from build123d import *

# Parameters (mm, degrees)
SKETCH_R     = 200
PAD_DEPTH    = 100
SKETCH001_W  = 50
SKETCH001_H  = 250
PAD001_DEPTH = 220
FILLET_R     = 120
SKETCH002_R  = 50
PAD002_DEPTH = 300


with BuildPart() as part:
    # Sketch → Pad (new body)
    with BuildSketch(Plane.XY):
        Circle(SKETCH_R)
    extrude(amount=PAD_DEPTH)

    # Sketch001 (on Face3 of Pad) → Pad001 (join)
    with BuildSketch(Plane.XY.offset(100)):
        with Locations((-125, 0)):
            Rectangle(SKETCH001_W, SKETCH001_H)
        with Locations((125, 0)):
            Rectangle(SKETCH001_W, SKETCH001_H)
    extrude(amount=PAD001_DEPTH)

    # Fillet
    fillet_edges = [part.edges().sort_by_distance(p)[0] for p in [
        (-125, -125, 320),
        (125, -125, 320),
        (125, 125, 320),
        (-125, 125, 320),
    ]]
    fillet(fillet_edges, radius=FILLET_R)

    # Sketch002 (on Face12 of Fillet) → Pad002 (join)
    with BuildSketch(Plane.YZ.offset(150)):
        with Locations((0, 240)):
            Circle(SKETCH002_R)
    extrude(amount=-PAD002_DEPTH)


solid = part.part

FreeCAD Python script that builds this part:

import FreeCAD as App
import Part
import Sketcher
Q = App.Units.Quantity


def edges_at(feature, points):
    """Names of the edges that pass closest to the given points."""
    edges = feature.Shape.Edges
    near = lambda p: min(range(len(edges)), key=lambda i: edges[i].distToShape(Part.Vertex(*p))[0])
    return sorted({f"Edge{near(p) + 1}" for p in points})

doc = App.newDocument("Part")
body = doc.addObject("PartDesign::Body", "Body")

sketch1 = body.newObject("Sketcher::SketchObject", "Sketch")
sketch1.AttachmentSupport = (doc.getObject("XY_Plane"), [""])
sketch1.MapMode = "FlatFace"
sketch1.addGeometry(Part.Circle(App.Vector(0, 0, 0), App.Vector(0, 0, 1), 200), False)
sketch1.addConstraint(Sketcher.Constraint("Coincident", 0, 3, -1, 1))
sketch1.addConstraint(Sketcher.Constraint("Diameter", 0, Q("400 mm")))
pad1 = body.newObject("PartDesign::Pad", "Pad")
pad1.Profile = sketch1
pad1.Length = 100

sketch2 = body.newObject("Sketcher::SketchObject", "Sketch001")
sketch2.AttachmentSupport = (doc.getObject("XY_Plane"), [""])
sketch2.MapMode = "FlatFace"
sketch2.AttachmentOffset = App.Placement(App.Vector(0, 0, 100), App.Rotation())
sketch2.addGeometry(Part.LineSegment(App.Vector(-150, 125, 0), App.Vector(-150, -125, 0)), False)
sketch2.addGeometry(Part.LineSegment(App.Vector(-150, -125, 0), App.Vector(-100, -125, 0)), False)
sketch2.addGeometry(Part.LineSegment(App.Vector(-100, -125, 0), App.Vector(-100, 125, 0)), False)
sketch2.addGeometry(Part.LineSegment(App.Vector(-100, 125, 0), App.Vector(-150, 125, 0)), False)
sketch2.addGeometry(Part.LineSegment(App.Vector(100, 125, 0), App.Vector(100, -125, 0)), False)
sketch2.addGeometry(Part.LineSegment(App.Vector(100, -125, 0), App.Vector(150, -125, 0)), False)
sketch2.addGeometry(Part.LineSegment(App.Vector(150, -125, 0), App.Vector(150, 125, 0)), False)
sketch2.addGeometry(Part.LineSegment(App.Vector(150, 125, 0), App.Vector(100, 125, 0)), False)
sketch2.addConstraint(Sketcher.Constraint("Coincident", 0, 2, 1, 1))
sketch2.addConstraint(Sketcher.Constraint("Coincident", 1, 2, 2, 1))
sketch2.addConstraint(Sketcher.Constraint("Coincident", 2, 2, 3, 1))
sketch2.addConstraint(Sketcher.Constraint("Coincident", 3, 2, 0, 1))
sketch2.addConstraint(Sketcher.Constraint("Coincident", 4, 2, 5, 1))
sketch2.addConstraint(Sketcher.Constraint("Coincident", 5, 2, 6, 1))
sketch2.addConstraint(Sketcher.Constraint("Coincident", 6, 2, 7, 1))
sketch2.addConstraint(Sketcher.Constraint("Coincident", 7, 2, 4, 1))
sketch2.addConstraint(Sketcher.Constraint("Vertical", 0))
sketch2.addConstraint(Sketcher.Constraint("Horizontal", 1))
sketch2.addConstraint(Sketcher.Constraint("Vertical", 2))
sketch2.addConstraint(Sketcher.Constraint("Horizontal", 3))
sketch2.addConstraint(Sketcher.Constraint("Vertical", 4))
sketch2.addConstraint(Sketcher.Constraint("Horizontal", 5))
sketch2.addConstraint(Sketcher.Constraint("Vertical", 6))
sketch2.addConstraint(Sketcher.Constraint("Horizontal", 7))
sketch2.addConstraint(Sketcher.Constraint("Symmetric", 2, 2, 4, 2, -1, 1))
sketch2.addConstraint(Sketcher.Constraint("Symmetric", 0, 2, 6, 2, -1, 1))
sketch2.addConstraint(Sketcher.Constraint("Horizontal", 1, 2, 4, 2))
sketch2.addConstraint(Sketcher.Constraint("DistanceX", 1, 1, 1, 2, Q("50 mm")))
sketch2.addConstraint(Sketcher.Constraint("DistanceY", 0, 2, 0, 1, Q("250 mm")))
sketch2.addConstraint(Sketcher.Constraint("DistanceX", 0, 2, -1, 1, Q("150 mm")))
pad2 = body.newObject("PartDesign::Pad", "Pad001")
pad2.Profile = sketch2
pad2.Length = 220
doc.recompute()

fillet = body.newObject("PartDesign::Fillet", "Fillet")
fillet.Base = (pad2, edges_at(pad2, [
    (-125, -125, 320),
    (125, -125, 320),
    (125, 125, 320),
    (-125, 125, 320),
]))
fillet.Radius = 120

sketch3 = body.newObject("Sketcher::SketchObject", "Sketch002")
sketch3.AttachmentSupport = (doc.getObject("YZ_Plane"), [""])
sketch3.MapMode = "FlatFace"
sketch3.AttachmentOffset = App.Placement(App.Vector(0, 0, 150), App.Rotation())
sketch3.addGeometry(Part.Circle(App.Vector(0, 240, 0), App.Vector(0, 0, 1), 50), False)
sketch3.addConstraint(Sketcher.Constraint("PointOnObject", 0, 3, -2))
sketch3.addConstraint(Sketcher.Constraint("Diameter", 0, Q("100 mm")))
sketch3.addConstraint(Sketcher.Constraint("DistanceY", -1, 1, 0, 3, Q("240 mm")))
pad3 = body.newObject("PartDesign::Pad", "Pad002")
pad3.Profile = sketch3
pad3.Length = 300
pad3.Reversed = True

doc.recompute()
